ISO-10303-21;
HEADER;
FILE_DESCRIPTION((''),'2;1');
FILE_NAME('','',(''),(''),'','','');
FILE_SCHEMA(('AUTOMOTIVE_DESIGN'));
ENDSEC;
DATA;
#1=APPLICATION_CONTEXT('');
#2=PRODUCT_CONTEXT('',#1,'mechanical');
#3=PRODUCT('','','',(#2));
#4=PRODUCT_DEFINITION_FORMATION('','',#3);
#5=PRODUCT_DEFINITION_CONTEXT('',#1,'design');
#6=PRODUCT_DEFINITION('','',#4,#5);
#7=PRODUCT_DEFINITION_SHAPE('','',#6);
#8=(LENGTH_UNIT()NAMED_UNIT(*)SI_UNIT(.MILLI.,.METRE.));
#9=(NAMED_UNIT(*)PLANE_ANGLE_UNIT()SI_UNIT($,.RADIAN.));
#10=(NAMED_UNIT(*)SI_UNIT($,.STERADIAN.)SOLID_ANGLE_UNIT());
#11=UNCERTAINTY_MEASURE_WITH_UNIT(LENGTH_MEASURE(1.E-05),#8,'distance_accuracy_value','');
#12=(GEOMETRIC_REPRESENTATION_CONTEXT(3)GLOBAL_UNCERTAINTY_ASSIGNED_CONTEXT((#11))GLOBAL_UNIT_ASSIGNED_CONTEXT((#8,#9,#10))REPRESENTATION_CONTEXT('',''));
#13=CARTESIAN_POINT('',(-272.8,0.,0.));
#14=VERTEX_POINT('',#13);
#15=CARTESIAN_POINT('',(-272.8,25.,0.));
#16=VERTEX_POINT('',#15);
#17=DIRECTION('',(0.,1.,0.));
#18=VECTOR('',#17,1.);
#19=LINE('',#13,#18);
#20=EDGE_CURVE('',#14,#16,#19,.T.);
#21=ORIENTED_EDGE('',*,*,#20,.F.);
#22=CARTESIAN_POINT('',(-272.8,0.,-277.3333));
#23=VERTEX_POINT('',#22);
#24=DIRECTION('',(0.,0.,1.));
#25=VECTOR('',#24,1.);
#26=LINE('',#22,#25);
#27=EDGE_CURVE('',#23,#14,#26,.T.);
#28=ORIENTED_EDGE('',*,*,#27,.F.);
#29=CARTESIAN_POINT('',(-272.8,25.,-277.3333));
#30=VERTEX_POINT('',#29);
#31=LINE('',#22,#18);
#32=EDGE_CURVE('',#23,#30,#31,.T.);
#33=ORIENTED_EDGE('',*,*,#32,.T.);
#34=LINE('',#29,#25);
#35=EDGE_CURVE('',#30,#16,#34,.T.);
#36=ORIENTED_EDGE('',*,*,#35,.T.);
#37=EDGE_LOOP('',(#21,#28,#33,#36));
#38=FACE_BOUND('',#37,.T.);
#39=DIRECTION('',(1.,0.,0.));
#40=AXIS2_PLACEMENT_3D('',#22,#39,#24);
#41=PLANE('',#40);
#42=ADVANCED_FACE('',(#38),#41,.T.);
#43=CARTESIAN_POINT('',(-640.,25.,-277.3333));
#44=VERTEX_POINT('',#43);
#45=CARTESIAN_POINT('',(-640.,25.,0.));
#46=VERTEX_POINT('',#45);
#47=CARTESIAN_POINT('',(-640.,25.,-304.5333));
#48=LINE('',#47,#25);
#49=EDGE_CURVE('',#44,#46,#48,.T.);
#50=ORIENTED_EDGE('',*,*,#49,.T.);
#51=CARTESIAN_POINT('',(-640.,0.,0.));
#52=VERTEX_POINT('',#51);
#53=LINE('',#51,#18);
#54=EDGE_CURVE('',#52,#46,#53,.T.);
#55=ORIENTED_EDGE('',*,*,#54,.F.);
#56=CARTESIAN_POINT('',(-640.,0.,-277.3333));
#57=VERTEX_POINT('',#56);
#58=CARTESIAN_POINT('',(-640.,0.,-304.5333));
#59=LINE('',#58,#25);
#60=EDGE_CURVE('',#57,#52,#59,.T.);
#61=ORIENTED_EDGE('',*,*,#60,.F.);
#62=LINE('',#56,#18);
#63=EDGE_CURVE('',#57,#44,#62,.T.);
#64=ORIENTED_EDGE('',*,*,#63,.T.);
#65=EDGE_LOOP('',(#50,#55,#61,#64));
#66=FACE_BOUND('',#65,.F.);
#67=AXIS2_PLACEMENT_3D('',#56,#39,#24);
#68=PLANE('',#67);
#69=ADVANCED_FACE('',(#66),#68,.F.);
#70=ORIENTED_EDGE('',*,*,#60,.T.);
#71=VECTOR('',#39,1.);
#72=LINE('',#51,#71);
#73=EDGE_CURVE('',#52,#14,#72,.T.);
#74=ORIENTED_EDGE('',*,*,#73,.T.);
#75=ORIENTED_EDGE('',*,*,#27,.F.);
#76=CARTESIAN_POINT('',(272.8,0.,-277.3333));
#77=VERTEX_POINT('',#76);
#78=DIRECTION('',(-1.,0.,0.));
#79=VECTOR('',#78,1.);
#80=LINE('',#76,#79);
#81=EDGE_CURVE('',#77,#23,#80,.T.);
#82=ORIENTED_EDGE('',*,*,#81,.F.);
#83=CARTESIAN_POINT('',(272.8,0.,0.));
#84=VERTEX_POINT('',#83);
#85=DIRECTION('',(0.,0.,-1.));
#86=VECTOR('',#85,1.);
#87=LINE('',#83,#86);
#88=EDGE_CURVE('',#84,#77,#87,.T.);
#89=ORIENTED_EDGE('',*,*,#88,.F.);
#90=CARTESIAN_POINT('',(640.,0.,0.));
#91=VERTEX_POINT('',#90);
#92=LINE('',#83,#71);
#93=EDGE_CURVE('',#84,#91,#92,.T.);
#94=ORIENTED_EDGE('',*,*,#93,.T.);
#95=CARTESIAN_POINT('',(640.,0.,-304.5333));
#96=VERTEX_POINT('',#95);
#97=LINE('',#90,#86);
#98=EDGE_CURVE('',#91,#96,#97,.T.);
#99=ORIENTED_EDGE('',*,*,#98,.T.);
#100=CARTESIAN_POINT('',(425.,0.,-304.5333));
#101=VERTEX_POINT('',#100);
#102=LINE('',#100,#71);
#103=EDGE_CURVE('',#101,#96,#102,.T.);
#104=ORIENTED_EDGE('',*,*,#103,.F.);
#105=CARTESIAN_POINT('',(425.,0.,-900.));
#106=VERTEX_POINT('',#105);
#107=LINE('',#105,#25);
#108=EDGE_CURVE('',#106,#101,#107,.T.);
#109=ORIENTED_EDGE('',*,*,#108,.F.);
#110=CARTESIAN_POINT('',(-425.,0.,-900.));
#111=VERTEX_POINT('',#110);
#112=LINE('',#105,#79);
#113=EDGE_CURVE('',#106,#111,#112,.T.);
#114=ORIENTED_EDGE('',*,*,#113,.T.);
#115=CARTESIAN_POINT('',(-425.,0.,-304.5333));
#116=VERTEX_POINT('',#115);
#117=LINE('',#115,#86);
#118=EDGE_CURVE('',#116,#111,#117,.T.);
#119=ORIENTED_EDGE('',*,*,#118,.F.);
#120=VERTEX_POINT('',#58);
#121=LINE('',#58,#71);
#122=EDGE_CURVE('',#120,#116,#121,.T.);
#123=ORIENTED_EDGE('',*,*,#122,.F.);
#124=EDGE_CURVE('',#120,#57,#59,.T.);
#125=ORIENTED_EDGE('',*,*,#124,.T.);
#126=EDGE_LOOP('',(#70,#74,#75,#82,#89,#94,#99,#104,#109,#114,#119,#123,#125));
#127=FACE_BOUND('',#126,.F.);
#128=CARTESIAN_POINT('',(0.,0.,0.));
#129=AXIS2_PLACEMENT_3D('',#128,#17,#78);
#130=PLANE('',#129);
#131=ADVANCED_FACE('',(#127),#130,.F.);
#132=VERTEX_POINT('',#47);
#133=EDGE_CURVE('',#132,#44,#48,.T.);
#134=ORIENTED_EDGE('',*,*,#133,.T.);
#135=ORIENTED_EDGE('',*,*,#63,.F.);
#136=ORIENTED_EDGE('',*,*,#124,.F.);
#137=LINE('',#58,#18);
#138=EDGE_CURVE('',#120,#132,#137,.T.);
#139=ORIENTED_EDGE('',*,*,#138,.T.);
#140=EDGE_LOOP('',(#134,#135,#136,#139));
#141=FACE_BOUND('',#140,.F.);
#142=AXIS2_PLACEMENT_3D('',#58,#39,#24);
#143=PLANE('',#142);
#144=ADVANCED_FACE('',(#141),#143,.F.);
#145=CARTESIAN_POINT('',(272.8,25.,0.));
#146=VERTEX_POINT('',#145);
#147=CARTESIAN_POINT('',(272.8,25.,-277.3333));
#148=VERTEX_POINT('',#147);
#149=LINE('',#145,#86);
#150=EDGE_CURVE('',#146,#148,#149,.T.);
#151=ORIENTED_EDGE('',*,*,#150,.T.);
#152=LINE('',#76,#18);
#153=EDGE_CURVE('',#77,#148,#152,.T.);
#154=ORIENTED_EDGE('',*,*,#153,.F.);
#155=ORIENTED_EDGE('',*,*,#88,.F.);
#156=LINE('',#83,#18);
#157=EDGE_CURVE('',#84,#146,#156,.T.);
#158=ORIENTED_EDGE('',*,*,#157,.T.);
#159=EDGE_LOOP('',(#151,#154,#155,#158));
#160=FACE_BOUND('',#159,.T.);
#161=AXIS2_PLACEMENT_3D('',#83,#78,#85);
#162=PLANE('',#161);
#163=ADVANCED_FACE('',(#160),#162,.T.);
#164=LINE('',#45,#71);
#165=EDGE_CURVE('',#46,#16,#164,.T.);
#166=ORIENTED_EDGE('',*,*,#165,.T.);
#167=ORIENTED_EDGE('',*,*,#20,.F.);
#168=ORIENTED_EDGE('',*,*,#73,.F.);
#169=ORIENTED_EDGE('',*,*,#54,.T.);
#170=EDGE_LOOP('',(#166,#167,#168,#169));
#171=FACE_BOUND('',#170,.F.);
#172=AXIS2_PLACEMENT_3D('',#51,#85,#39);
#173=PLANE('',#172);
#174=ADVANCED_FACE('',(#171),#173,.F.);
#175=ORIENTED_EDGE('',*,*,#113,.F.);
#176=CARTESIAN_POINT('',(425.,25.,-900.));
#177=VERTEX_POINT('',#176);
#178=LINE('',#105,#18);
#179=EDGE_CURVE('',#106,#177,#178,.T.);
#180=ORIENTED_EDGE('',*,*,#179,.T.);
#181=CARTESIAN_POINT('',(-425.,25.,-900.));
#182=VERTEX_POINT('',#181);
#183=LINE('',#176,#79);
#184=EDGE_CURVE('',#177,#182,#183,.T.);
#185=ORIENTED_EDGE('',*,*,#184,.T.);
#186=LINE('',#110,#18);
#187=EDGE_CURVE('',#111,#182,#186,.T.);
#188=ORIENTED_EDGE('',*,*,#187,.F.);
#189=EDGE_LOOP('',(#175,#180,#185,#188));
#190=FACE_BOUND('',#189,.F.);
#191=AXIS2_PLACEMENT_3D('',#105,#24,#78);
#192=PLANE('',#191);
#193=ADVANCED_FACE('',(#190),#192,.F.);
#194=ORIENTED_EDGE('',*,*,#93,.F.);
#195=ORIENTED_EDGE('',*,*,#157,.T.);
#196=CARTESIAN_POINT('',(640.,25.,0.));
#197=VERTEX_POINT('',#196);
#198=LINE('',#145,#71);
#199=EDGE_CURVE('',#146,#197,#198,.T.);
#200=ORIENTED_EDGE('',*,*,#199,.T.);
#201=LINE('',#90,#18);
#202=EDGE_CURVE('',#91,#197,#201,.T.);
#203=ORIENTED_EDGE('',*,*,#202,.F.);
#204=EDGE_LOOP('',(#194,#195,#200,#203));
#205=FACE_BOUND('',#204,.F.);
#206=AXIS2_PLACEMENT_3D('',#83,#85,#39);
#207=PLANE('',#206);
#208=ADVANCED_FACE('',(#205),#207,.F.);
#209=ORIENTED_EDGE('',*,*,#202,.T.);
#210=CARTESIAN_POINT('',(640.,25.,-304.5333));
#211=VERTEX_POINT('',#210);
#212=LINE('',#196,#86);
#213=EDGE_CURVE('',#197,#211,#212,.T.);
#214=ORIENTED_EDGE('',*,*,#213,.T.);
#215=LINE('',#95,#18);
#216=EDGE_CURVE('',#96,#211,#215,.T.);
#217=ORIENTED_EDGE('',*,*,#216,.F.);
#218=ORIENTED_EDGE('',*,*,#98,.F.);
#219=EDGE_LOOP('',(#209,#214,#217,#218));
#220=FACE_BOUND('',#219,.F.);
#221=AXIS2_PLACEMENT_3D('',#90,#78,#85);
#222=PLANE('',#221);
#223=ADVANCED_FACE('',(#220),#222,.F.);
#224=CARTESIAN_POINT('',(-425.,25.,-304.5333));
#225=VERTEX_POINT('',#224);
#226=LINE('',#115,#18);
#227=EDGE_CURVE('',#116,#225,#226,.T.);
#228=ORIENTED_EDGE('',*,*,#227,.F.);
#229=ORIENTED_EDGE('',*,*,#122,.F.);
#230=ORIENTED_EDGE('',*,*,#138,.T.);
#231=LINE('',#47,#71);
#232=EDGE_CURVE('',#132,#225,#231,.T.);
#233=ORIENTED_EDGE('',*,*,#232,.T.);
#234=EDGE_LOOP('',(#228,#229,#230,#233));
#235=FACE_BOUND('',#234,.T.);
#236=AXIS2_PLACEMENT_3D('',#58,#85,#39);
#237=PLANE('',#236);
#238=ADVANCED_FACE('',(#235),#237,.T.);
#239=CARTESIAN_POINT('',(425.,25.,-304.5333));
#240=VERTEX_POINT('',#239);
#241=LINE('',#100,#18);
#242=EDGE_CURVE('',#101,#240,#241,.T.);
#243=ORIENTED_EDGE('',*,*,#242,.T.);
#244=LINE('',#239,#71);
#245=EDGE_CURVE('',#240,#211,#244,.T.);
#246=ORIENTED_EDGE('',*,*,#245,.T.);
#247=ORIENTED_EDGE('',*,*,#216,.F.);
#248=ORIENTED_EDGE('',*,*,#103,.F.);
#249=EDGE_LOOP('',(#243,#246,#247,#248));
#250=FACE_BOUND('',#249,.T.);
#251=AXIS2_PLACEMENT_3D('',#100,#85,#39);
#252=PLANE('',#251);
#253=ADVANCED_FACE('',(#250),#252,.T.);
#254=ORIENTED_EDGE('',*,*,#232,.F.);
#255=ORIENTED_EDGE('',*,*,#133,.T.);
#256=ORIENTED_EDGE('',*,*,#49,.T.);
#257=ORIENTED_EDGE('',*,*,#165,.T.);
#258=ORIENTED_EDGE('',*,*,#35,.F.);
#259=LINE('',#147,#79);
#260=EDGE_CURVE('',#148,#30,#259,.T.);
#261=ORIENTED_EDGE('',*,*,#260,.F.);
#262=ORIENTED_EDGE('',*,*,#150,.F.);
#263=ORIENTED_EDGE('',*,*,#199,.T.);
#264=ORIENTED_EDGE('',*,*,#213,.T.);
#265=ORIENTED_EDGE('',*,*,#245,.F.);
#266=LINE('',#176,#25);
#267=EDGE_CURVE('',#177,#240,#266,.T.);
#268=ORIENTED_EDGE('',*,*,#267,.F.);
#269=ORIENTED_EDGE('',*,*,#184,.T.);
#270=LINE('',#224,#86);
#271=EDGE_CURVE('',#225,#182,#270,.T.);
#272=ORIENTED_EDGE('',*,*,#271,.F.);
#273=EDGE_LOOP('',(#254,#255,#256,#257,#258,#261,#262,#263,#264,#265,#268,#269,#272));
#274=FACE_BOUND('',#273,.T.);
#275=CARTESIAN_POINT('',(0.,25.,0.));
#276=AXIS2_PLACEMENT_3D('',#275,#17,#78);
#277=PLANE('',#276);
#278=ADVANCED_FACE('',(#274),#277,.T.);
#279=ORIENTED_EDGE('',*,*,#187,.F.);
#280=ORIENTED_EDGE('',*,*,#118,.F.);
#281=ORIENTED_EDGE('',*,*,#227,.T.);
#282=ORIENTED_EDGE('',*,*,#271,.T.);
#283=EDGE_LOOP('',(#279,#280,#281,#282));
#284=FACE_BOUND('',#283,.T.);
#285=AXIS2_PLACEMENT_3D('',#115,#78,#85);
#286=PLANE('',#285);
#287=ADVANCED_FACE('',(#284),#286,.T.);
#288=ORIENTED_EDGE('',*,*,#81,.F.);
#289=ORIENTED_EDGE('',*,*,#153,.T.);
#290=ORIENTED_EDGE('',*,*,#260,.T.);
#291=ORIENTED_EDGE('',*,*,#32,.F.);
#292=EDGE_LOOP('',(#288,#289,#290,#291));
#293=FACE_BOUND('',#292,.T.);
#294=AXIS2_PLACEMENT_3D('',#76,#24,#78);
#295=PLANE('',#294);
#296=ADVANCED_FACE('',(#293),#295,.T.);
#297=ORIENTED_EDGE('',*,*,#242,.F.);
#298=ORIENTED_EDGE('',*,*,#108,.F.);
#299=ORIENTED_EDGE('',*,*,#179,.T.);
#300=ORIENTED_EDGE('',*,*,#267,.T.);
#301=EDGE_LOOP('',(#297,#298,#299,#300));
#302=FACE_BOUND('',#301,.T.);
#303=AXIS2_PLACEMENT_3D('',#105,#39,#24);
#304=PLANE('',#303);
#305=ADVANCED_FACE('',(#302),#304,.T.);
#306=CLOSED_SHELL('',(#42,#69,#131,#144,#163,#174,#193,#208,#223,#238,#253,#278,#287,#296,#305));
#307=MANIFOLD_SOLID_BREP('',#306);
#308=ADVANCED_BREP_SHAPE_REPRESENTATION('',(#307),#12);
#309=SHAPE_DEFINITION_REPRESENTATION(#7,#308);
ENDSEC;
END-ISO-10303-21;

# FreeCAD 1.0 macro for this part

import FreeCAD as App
import Part
import Sketcher
Q = App.Units.Quantity

doc = App.newDocument("Part")
params = doc.addObject("Spreadsheet::Sheet", "Params")
for row, (alias, value) in enumerate([
    ("sketch1_width", "215 mm"),
    ("sketch1_width2", "850 mm"),
    ("sketch1_width3", "367.2 mm"),
    ("pad1_length", "25 mm"),
], start=1):
    params.set(f"A{row}", alias)
    params.set(f"B{row}", "=" + value)
    params.setAlias(f"B{row}", alias)

body = doc.addObject("PartDesign::Body", "Body")

# Sketch on XZ plane
sketch1 = body.newObject("Sketcher::SketchObject", "Sketch")
sketch1.AttachmentSupport = (doc.getObject("XZ_Plane"), [""])
sketch1.MapMode = "FlatFace"
sketch1.addGeometry([
    Part.LineSegment(App.Vector(273, 0, 0), App.Vector(640, 0, 0)),  # 0
    Part.LineSegment(App.Vector(640, 0, 0), App.Vector(640, -305, 0)),  # 1
    Part.LineSegment(App.Vector(640, -305, 0), App.Vector(425, -305, 0)),  # 2
    Part.LineSegment(App.Vector(425, -305, 0), App.Vector(425, -900, 0)),  # 3
    Part.LineSegment(App.Vector(425, -900, 0), App.Vector(-425, -900, 0)),  # 4
    Part.LineSegment(App.Vector(-425, -900, 0), App.Vector(-425, -305, 0)),  # 5
    Part.LineSegment(App.Vector(-425, -305, 0), App.Vector(-640, -305, 0)),  # 6
    Part.LineSegment(App.Vector(-640, -305, 0), App.Vector(-640, 0, 0)),  # 7
    Part.LineSegment(App.Vector(-640, 0, 0), App.Vector(-273, 0, 0)),  # 8
    Part.LineSegment(App.Vector(-273, 0, 0), App.Vector(-273, -277, 0)),  # 9
    Part.LineSegment(App.Vector(-273, -277, 0), App.Vector(273, -277, 0)),  # 10
    Part.LineSegment(App.Vector(273, -277, 0), App.Vector(273, 0, 0)),  # 11
], False)
sketch1.addConstraint([
    Sketcher.Constraint("Coincident", 0, 2, 1, 1),
    Sketcher.Constraint("Coincident", 1, 2, 2, 1),
    Sketcher.Constraint("Coincident", 2, 2, 3, 1),
    Sketcher.Constraint("Coincident", 3, 2, 4, 1),
    Sketcher.Constraint("Coincident", 4, 2, 5, 1),
    Sketcher.Constraint("Coincident", 5, 2, 6, 1),
    Sketcher.Constraint("Coincident", 6, 2, 7, 1),
    Sketcher.Constraint("Coincident", 7, 2, 8, 1),
    Sketcher.Constraint("Coincident", 8, 2, 9, 1),
    Sketcher.Constraint("Coincident", 9, 2, 10, 1),
    Sketcher.Constraint("Coincident", 10, 2, 11, 1),
    Sketcher.Constraint("Coincident", 11, 2, 0, 1),
    Sketcher.Constraint("Horizontal", 0),
    Sketcher.Constraint("Vertical", 1),
    Sketcher.Constraint("Horizontal", 2),
    Sketcher.Constraint("Vertical", 3),
    Sketcher.Constraint("Horizontal", 4),
    Sketcher.Constraint("Vertical", 5),
    Sketcher.Constraint("Horizontal", 6),
    Sketcher.Constraint("Vertical", 7),
    Sketcher.Constraint("Horizontal", 8),
    Sketcher.Constraint("Vertical", 9),
    Sketcher.Constraint("Horizontal", 10),
    Sketcher.Constraint("Vertical", 11),
    Sketcher.Constraint("Symmetric", 0, 2, 7, 2, -1, 1),
    Sketcher.Constraint("Symmetric", 2, 2, 5, 2, -2),
    Sketcher.Constraint("Symmetric", 8, 2, 11, 2, -2),
    Sketcher.Constraint("DistanceX", 2, 2, 2, 1, Q("215 mm")),
    Sketcher.Constraint("DistanceX", 4, 2, 4, 1, Q("850 mm")),
    Sketcher.Constraint("DistanceX", 0, 1, 0, 2, Q("367.2 mm")),
    Sketcher.Constraint("DistanceY", 3, 2, -1, 1, Q("900 mm")),
    Sketcher.Constraint("DistanceY", 1, 2, 1, 1, Q("304.5333 mm")),
    Sketcher.Constraint("DistanceY", 5, 2, 9, 2, Q("27.2 mm")),
])
sketch1.setExpression("Constraints[27]", "Params.sketch1_width")
sketch1.setExpression("Constraints[28]", "Params.sketch1_width2")
sketch1.setExpression("Constraints[29]", "Params.sketch1_width3")
pad1 = body.newObject("PartDesign::Pad", "Pad")
pad1.Profile = sketch1
pad1.setExpression("Length", "Params.pad1_length")
pad1.Reversed = True

doc.recompute()
